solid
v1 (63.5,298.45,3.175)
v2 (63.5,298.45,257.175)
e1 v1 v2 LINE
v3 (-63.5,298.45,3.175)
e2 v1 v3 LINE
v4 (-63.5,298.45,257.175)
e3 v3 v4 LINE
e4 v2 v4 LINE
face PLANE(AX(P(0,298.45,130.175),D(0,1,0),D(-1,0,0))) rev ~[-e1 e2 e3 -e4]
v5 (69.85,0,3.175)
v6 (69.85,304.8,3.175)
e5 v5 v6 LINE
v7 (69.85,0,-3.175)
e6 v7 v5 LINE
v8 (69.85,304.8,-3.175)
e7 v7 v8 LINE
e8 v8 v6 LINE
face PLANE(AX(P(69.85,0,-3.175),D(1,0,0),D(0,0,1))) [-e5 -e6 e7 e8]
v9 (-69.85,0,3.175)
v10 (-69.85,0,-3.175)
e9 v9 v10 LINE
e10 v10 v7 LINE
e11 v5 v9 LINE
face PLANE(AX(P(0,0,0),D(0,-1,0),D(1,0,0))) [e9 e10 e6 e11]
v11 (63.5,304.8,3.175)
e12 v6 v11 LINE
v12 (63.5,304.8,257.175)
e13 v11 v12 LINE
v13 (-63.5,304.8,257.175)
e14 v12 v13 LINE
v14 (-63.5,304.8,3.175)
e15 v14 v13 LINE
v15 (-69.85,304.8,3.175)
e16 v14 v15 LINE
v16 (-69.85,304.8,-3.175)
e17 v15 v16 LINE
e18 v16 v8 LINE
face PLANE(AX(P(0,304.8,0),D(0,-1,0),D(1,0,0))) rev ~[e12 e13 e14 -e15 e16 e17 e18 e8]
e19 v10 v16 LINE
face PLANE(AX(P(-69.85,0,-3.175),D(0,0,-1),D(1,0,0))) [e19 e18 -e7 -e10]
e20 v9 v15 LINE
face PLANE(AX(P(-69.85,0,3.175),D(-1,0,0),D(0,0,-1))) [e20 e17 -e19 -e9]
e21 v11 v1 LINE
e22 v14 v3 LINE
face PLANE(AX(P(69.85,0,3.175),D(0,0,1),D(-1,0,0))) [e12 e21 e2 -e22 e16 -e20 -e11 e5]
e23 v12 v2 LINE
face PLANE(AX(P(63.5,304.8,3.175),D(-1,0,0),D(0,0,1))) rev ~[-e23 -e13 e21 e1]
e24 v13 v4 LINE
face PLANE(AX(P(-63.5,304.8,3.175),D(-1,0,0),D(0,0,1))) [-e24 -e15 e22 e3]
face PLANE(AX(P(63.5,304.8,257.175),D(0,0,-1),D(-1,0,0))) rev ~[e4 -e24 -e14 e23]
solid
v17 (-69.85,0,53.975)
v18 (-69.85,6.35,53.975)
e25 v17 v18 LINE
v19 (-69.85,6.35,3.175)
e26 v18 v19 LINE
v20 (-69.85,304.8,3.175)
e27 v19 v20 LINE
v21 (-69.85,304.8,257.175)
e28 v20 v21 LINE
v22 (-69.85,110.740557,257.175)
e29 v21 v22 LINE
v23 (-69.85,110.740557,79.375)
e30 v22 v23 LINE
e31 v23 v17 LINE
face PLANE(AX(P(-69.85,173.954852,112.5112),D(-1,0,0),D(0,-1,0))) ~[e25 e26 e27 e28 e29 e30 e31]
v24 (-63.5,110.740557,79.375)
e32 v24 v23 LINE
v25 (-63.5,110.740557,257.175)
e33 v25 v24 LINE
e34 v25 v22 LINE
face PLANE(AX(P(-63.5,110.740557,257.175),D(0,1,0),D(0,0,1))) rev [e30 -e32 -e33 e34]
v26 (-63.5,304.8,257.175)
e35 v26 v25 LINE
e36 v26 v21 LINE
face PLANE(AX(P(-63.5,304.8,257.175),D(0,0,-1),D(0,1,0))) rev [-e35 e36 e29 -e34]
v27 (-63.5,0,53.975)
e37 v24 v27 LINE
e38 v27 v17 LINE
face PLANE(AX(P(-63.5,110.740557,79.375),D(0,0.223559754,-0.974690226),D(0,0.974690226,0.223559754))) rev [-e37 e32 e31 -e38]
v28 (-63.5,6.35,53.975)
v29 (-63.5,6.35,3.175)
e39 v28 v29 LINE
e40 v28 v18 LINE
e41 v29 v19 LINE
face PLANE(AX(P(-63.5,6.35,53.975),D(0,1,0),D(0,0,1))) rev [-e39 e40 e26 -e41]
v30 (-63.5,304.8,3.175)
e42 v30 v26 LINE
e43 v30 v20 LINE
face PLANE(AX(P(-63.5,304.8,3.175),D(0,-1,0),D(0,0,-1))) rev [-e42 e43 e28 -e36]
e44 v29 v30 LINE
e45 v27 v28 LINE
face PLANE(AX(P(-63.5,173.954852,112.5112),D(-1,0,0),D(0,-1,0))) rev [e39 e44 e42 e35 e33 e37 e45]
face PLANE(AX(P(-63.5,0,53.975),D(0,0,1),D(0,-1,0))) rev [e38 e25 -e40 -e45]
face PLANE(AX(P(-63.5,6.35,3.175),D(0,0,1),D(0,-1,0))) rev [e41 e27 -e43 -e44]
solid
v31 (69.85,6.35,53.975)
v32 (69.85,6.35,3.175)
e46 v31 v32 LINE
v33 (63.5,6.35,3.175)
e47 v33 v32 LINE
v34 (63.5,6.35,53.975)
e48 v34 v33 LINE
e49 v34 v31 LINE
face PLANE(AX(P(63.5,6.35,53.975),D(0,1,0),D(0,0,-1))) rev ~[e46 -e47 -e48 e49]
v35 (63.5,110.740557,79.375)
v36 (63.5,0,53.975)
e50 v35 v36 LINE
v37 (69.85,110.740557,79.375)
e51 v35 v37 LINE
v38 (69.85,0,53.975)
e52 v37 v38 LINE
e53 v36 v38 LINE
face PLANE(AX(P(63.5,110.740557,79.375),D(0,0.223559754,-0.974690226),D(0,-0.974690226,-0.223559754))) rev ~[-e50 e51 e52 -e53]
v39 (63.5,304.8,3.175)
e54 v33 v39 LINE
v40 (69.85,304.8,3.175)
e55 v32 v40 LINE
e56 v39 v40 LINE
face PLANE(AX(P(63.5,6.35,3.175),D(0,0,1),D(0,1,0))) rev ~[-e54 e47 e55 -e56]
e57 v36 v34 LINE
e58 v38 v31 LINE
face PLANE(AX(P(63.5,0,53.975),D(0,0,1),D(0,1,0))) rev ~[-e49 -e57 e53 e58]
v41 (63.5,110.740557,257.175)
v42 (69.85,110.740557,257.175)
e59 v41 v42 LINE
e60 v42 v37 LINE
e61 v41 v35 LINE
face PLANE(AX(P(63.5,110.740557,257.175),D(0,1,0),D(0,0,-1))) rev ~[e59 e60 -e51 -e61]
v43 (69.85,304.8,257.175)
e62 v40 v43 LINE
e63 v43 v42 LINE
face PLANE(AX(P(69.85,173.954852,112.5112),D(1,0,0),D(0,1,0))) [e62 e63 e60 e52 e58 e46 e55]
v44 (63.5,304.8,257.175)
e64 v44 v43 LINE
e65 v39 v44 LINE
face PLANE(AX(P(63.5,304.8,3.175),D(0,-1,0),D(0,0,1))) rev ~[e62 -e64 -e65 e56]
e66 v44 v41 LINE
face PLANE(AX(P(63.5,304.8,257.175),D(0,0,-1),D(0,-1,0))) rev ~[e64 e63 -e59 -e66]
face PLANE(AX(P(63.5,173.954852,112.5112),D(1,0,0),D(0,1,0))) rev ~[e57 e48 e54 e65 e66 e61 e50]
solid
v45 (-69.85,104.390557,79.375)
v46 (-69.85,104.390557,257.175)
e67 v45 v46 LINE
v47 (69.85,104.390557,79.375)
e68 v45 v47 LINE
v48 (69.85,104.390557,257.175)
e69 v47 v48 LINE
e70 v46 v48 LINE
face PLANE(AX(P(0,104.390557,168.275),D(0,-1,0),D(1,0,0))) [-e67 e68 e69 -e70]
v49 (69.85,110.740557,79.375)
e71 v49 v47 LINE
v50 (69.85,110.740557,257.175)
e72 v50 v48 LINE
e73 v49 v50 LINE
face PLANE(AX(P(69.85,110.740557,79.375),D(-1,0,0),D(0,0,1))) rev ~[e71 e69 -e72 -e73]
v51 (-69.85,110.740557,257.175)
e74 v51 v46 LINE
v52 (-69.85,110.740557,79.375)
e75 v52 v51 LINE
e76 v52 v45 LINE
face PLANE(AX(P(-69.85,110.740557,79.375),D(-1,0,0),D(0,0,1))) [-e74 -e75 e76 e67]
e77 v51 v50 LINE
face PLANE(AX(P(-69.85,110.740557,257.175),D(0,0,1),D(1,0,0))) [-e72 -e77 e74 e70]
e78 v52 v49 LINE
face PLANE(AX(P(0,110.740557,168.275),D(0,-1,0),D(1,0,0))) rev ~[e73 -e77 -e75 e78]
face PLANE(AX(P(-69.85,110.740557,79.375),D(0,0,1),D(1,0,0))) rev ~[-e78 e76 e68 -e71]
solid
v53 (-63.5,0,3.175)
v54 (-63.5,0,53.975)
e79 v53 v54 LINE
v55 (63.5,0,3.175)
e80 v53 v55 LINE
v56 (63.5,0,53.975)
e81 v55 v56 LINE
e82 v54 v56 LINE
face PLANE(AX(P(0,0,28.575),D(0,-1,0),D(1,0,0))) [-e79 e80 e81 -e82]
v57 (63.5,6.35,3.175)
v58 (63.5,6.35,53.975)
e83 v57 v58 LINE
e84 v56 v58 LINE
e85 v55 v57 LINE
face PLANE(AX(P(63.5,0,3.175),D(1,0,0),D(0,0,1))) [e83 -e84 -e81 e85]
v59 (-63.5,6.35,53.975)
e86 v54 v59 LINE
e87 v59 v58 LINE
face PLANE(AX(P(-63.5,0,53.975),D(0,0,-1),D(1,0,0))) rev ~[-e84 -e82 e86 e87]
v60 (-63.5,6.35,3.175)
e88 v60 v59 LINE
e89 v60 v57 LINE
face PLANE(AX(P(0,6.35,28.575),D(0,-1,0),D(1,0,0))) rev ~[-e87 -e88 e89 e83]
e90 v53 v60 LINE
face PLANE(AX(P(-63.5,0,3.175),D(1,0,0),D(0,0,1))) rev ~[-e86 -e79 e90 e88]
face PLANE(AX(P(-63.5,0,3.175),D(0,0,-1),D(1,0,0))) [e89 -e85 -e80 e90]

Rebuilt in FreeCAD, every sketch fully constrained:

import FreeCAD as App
import Part
import Sketcher

V = App.Vector
Q = App.Units.Quantity


def add_polygon(sketch, points):
    """Adds a closed chain of lines whose ends are joined by coincident constraints."""
    first, n = sketch.GeometryCount, len(points)
    for a, b in zip(points, points[1:] + points[:1]):
        sketch.addGeometry(Part.LineSegment(App.Vector(*a, 0), App.Vector(*b, 0)), False)
    for i in range(n):
        sketch.addConstraint(Sketcher.Constraint("Coincident", first + i, 2, first + (i + 1) % n, 1))

doc = App.newDocument("Part")
body = doc.addObject("PartDesign::Body", "Body")

# Sketch on XZ plane
sketch1 = doc.addObject("Sketcher::SketchObject", "Sketch")
body.addObject(sketch1)
sketch1.AttachmentSupport = (doc.XZ_Plane, [""])
sketch1.MapMode = "FlatFace"
add_polygon(sketch1, [(-70, -3), (70, -3), (70, 3), (-70, 3)])  # lines 0-3
sketch1.addConstraint(Sketcher.Constraint("Horizontal", 0))
sketch1.addConstraint(Sketcher.Constraint("Vertical", 1))
sketch1.addConstraint(Sketcher.Constraint("Horizontal", 2))
sketch1.addConstraint(Sketcher.Constraint("Vertical", 3))
sketch1.addConstraint(Sketcher.Constraint("Symmetric", 0, 2, 2, 2, -1, 1))
sketch1.addConstraint(Sketcher.Constraint("DistanceX", 0, 1, 0, 2, Q("5.5 in")))
sketch1.addConstraint(Sketcher.Constraint("DistanceY", 1, 1, 1, 2, Q("0.25 in")))
pad1 = doc.addObject("PartDesign::Pad", "Pad")
body.addObject(pad1)
pad1.Profile = sketch1
pad1.Length = Q("12 in")
pad1.Reversed = True

# Sketch on XZ plane
sketch2 = doc.addObject("Sketcher::SketchObject", "Sketch001")
body.addObject(sketch2)
sketch2.AttachmentSupport = (doc.XZ_Plane, [""])
sketch2.MapMode = "FlatFace"
sketch2.AttachmentOffset = App.Placement(V(0, 0, -12 * 25.4), App.Rotation())
add_polygon(sketch2, [(64, 257), (64, 3), (-64, 3), (-64, 257)])  # lines 0-3
sketch2.addConstraint(Sketcher.Constraint("Vertical", 0))
sketch2.addConstraint(Sketcher.Constraint("Horizontal", 1))
sketch2.addConstraint(Sketcher.Constraint("Vertical", 2))
sketch2.addConstraint(Sketcher.Constraint("Horizontal", 3))
sketch2.addConstraint(Sketcher.Constraint("DistanceX", 1, 2, 1, 1, Q("5 in")))
sketch2.addConstraint(Sketcher.Constraint("DistanceY", 0, 2, 0, 1, Q("10 in")))
sketch2.addConstraint(Sketcher.Constraint("DistanceX", -1, 1, 0, 2, Q("2.5 in")))
sketch2.addConstraint(Sketcher.Constraint("DistanceY", -1, 1, 0, 2, Q("0.125 in")))
pad2 = doc.addObject("PartDesign::Pad", "Pad001")
body.addObject(pad2)
pad2.Profile = sketch2
pad2.Length = Q("0.25 in")
body2 = doc.addObject("PartDesign::Body", "Body001")

# Sketch on XZ plane
sketch3 = doc.addObject("Sketcher::SketchObject", "Sketch002")
body2.addObject(sketch3)
sketch3.AttachmentSupport = (doc.getObject("XZ_Plane001"), [""])
sketch3.MapMode = "FlatFace"
add_polygon(sketch3, [(-64, 54), (-64, 3), (64, 3), (64, 54)])  # lines 0-3
sketch3.addConstraint(Sketcher.Constraint("Vertical", 0))
sketch3.addConstraint(Sketcher.Constraint("Horizontal", 1))
sketch3.addConstraint(Sketcher.Constraint("Vertical", 2))
sketch3.addConstraint(Sketcher.Constraint("Horizontal", 3))
sketch3.addConstraint(Sketcher.Constraint("DistanceX", 1, 1, 1, 2, Q("5 in")))
sketch3.addConstraint(Sketcher.Constraint("DistanceY", 0, 2, 0, 1, Q("2 in")))
sketch3.addConstraint(Sketcher.Constraint("DistanceX", 0, 2, -1, 1, Q("2.5 in")))
sketch3.addConstraint(Sketcher.Constraint("DistanceY", -1, 1, 0, 2, Q("0.125 in")))
pad3 = doc.addObject("PartDesign::Pad", "Pad002")
body2.addObject(pad3)
pad3.Profile = sketch3
pad3.Length = Q("0.25 in")
pad3.Reversed = True
body3 = doc.addObject("PartDesign::Body", "Body002")

# Sketch on YZ plane
sketch4 = doc.addObject("Sketcher::SketchObject", "Sketch003")
body3.addObject(sketch4)
sketch4.AttachmentSupport = (doc.getObject("YZ_Plane002"), [""])
sketch4.MapMode = "FlatFace"
sketch4.AttachmentOffset = App.Placement(V(0, 0, 2.5 * 25.4), App.Rotation())
add_polygon(sketch4, [(6, 54), (6, 3), (305, 3), (305, 257), (111, 257), (111, 79), (0, 54)])  # lines 0-6
sketch4.addConstraint(Sketcher.Constraint("Vertical", 0))
sketch4.addConstraint(Sketcher.Constraint("Horizontal", 1))
sketch4.addConstraint(Sketcher.Constraint("Vertical", 2))
sketch4.addConstraint(Sketcher.Constraint("Horizontal", 3))
sketch4.addConstraint(Sketcher.Constraint("Vertical", 4))
sketch4.addConstraint(Sketcher.Constraint("Horizontal", 6))
sketch4.addConstraint(Sketcher.Constraint("PointOnObject", 5, 2, -2))
sketch4.addConstraint(Sketcher.Constraint("DistanceY", 0, 2, 0, 1, Q("2 in")))
sketch4.addConstraint(Sketcher.Constraint("DistanceY", 2, 1, 2, 2, Q("10 in")))
sketch4.addConstraint(Sketcher.Constraint("DistanceY", 4, 2, 4, 1, Q("7 in")))
sketch4.addConstraint(Sketcher.Constraint("DistanceX", -1, 1, 1, 2, Q("12 in")))
sketch4.addConstraint(Sketcher.Constraint("DistanceX", 1, 1, 1, 2, Q("11.75 in")))
sketch4.addConstraint(Sketcher.Constraint("DistanceY", -1, 1, 0, 2, Q("0.125 in")))
sketch4.addConstraint(Sketcher.Constraint("DistanceX", 3, 2, 3, 1, 194.059443))
pad4 = doc.addObject("PartDesign::Pad", "Pad003")
body3.addObject(pad4)
pad4.Profile = sketch4
pad4.Length = Q("0.25 in")
body4 = doc.addObject("PartDesign::Body", "Body003")
doc.recompute()

mirroring = doc.addObject("Part::Mirroring", "Mirroring")
mirroring.Source = body3
mirroring.Base = V(0, 0, 0)
mirroring.Normal = V(1, 0, 0)
body4.BaseFeature = mirroring
doc.recompute()
body5 = doc.addObject("PartDesign::Body", "Body004")

# Sketch on XZ plane
sketch5 = doc.addObject("Sketcher::SketchObject", "Sketch004")
body5.addObject(sketch5)
sketch5.AttachmentSupport = (doc.getObject("XZ_Plane004"), [""])
sketch5.MapMode = "FlatFace"
sketch5.AttachmentOffset = App.Placement(V(0, 0, -110.740557), App.Rotation())
add_polygon(sketch5, [(-70, 257), (-70, 79), (70, 79), (70, 257)])  # lines 0-3
sketch5.addConstraint(Sketcher.Constraint("Vertical", 0))
sketch5.addConstraint(Sketcher.Constraint("Horizontal", 1))
sketch5.addConstraint(Sketcher.Constraint("Vertical", 2))
sketch5.addConstraint(Sketcher.Constraint("Horizontal", 3))
sketch5.addConstraint(Sketcher.Constraint("DistanceY", 0, 2, 0, 1, Q("7 in")))
sketch5.addConstraint(Sketcher.Constraint("DistanceX", 1, 1, 1, 2, Q("5.5 in")))
sketch5.addConstraint(Sketcher.Constraint("DistanceX", 0, 2, -1, 1, Q("2.75 in")))
sketch5.addConstraint(Sketcher.Constraint("DistanceY", -1, 1, 0, 2, Q("3.125 in")))
pad5 = doc.addObject("PartDesign::Pad", "Pad004")
body5.addObject(pad5)
pad5.Profile = sketch5
pad5.Length = Q("0.25 in")
mirroring.Visibility = False

doc.recompute()
